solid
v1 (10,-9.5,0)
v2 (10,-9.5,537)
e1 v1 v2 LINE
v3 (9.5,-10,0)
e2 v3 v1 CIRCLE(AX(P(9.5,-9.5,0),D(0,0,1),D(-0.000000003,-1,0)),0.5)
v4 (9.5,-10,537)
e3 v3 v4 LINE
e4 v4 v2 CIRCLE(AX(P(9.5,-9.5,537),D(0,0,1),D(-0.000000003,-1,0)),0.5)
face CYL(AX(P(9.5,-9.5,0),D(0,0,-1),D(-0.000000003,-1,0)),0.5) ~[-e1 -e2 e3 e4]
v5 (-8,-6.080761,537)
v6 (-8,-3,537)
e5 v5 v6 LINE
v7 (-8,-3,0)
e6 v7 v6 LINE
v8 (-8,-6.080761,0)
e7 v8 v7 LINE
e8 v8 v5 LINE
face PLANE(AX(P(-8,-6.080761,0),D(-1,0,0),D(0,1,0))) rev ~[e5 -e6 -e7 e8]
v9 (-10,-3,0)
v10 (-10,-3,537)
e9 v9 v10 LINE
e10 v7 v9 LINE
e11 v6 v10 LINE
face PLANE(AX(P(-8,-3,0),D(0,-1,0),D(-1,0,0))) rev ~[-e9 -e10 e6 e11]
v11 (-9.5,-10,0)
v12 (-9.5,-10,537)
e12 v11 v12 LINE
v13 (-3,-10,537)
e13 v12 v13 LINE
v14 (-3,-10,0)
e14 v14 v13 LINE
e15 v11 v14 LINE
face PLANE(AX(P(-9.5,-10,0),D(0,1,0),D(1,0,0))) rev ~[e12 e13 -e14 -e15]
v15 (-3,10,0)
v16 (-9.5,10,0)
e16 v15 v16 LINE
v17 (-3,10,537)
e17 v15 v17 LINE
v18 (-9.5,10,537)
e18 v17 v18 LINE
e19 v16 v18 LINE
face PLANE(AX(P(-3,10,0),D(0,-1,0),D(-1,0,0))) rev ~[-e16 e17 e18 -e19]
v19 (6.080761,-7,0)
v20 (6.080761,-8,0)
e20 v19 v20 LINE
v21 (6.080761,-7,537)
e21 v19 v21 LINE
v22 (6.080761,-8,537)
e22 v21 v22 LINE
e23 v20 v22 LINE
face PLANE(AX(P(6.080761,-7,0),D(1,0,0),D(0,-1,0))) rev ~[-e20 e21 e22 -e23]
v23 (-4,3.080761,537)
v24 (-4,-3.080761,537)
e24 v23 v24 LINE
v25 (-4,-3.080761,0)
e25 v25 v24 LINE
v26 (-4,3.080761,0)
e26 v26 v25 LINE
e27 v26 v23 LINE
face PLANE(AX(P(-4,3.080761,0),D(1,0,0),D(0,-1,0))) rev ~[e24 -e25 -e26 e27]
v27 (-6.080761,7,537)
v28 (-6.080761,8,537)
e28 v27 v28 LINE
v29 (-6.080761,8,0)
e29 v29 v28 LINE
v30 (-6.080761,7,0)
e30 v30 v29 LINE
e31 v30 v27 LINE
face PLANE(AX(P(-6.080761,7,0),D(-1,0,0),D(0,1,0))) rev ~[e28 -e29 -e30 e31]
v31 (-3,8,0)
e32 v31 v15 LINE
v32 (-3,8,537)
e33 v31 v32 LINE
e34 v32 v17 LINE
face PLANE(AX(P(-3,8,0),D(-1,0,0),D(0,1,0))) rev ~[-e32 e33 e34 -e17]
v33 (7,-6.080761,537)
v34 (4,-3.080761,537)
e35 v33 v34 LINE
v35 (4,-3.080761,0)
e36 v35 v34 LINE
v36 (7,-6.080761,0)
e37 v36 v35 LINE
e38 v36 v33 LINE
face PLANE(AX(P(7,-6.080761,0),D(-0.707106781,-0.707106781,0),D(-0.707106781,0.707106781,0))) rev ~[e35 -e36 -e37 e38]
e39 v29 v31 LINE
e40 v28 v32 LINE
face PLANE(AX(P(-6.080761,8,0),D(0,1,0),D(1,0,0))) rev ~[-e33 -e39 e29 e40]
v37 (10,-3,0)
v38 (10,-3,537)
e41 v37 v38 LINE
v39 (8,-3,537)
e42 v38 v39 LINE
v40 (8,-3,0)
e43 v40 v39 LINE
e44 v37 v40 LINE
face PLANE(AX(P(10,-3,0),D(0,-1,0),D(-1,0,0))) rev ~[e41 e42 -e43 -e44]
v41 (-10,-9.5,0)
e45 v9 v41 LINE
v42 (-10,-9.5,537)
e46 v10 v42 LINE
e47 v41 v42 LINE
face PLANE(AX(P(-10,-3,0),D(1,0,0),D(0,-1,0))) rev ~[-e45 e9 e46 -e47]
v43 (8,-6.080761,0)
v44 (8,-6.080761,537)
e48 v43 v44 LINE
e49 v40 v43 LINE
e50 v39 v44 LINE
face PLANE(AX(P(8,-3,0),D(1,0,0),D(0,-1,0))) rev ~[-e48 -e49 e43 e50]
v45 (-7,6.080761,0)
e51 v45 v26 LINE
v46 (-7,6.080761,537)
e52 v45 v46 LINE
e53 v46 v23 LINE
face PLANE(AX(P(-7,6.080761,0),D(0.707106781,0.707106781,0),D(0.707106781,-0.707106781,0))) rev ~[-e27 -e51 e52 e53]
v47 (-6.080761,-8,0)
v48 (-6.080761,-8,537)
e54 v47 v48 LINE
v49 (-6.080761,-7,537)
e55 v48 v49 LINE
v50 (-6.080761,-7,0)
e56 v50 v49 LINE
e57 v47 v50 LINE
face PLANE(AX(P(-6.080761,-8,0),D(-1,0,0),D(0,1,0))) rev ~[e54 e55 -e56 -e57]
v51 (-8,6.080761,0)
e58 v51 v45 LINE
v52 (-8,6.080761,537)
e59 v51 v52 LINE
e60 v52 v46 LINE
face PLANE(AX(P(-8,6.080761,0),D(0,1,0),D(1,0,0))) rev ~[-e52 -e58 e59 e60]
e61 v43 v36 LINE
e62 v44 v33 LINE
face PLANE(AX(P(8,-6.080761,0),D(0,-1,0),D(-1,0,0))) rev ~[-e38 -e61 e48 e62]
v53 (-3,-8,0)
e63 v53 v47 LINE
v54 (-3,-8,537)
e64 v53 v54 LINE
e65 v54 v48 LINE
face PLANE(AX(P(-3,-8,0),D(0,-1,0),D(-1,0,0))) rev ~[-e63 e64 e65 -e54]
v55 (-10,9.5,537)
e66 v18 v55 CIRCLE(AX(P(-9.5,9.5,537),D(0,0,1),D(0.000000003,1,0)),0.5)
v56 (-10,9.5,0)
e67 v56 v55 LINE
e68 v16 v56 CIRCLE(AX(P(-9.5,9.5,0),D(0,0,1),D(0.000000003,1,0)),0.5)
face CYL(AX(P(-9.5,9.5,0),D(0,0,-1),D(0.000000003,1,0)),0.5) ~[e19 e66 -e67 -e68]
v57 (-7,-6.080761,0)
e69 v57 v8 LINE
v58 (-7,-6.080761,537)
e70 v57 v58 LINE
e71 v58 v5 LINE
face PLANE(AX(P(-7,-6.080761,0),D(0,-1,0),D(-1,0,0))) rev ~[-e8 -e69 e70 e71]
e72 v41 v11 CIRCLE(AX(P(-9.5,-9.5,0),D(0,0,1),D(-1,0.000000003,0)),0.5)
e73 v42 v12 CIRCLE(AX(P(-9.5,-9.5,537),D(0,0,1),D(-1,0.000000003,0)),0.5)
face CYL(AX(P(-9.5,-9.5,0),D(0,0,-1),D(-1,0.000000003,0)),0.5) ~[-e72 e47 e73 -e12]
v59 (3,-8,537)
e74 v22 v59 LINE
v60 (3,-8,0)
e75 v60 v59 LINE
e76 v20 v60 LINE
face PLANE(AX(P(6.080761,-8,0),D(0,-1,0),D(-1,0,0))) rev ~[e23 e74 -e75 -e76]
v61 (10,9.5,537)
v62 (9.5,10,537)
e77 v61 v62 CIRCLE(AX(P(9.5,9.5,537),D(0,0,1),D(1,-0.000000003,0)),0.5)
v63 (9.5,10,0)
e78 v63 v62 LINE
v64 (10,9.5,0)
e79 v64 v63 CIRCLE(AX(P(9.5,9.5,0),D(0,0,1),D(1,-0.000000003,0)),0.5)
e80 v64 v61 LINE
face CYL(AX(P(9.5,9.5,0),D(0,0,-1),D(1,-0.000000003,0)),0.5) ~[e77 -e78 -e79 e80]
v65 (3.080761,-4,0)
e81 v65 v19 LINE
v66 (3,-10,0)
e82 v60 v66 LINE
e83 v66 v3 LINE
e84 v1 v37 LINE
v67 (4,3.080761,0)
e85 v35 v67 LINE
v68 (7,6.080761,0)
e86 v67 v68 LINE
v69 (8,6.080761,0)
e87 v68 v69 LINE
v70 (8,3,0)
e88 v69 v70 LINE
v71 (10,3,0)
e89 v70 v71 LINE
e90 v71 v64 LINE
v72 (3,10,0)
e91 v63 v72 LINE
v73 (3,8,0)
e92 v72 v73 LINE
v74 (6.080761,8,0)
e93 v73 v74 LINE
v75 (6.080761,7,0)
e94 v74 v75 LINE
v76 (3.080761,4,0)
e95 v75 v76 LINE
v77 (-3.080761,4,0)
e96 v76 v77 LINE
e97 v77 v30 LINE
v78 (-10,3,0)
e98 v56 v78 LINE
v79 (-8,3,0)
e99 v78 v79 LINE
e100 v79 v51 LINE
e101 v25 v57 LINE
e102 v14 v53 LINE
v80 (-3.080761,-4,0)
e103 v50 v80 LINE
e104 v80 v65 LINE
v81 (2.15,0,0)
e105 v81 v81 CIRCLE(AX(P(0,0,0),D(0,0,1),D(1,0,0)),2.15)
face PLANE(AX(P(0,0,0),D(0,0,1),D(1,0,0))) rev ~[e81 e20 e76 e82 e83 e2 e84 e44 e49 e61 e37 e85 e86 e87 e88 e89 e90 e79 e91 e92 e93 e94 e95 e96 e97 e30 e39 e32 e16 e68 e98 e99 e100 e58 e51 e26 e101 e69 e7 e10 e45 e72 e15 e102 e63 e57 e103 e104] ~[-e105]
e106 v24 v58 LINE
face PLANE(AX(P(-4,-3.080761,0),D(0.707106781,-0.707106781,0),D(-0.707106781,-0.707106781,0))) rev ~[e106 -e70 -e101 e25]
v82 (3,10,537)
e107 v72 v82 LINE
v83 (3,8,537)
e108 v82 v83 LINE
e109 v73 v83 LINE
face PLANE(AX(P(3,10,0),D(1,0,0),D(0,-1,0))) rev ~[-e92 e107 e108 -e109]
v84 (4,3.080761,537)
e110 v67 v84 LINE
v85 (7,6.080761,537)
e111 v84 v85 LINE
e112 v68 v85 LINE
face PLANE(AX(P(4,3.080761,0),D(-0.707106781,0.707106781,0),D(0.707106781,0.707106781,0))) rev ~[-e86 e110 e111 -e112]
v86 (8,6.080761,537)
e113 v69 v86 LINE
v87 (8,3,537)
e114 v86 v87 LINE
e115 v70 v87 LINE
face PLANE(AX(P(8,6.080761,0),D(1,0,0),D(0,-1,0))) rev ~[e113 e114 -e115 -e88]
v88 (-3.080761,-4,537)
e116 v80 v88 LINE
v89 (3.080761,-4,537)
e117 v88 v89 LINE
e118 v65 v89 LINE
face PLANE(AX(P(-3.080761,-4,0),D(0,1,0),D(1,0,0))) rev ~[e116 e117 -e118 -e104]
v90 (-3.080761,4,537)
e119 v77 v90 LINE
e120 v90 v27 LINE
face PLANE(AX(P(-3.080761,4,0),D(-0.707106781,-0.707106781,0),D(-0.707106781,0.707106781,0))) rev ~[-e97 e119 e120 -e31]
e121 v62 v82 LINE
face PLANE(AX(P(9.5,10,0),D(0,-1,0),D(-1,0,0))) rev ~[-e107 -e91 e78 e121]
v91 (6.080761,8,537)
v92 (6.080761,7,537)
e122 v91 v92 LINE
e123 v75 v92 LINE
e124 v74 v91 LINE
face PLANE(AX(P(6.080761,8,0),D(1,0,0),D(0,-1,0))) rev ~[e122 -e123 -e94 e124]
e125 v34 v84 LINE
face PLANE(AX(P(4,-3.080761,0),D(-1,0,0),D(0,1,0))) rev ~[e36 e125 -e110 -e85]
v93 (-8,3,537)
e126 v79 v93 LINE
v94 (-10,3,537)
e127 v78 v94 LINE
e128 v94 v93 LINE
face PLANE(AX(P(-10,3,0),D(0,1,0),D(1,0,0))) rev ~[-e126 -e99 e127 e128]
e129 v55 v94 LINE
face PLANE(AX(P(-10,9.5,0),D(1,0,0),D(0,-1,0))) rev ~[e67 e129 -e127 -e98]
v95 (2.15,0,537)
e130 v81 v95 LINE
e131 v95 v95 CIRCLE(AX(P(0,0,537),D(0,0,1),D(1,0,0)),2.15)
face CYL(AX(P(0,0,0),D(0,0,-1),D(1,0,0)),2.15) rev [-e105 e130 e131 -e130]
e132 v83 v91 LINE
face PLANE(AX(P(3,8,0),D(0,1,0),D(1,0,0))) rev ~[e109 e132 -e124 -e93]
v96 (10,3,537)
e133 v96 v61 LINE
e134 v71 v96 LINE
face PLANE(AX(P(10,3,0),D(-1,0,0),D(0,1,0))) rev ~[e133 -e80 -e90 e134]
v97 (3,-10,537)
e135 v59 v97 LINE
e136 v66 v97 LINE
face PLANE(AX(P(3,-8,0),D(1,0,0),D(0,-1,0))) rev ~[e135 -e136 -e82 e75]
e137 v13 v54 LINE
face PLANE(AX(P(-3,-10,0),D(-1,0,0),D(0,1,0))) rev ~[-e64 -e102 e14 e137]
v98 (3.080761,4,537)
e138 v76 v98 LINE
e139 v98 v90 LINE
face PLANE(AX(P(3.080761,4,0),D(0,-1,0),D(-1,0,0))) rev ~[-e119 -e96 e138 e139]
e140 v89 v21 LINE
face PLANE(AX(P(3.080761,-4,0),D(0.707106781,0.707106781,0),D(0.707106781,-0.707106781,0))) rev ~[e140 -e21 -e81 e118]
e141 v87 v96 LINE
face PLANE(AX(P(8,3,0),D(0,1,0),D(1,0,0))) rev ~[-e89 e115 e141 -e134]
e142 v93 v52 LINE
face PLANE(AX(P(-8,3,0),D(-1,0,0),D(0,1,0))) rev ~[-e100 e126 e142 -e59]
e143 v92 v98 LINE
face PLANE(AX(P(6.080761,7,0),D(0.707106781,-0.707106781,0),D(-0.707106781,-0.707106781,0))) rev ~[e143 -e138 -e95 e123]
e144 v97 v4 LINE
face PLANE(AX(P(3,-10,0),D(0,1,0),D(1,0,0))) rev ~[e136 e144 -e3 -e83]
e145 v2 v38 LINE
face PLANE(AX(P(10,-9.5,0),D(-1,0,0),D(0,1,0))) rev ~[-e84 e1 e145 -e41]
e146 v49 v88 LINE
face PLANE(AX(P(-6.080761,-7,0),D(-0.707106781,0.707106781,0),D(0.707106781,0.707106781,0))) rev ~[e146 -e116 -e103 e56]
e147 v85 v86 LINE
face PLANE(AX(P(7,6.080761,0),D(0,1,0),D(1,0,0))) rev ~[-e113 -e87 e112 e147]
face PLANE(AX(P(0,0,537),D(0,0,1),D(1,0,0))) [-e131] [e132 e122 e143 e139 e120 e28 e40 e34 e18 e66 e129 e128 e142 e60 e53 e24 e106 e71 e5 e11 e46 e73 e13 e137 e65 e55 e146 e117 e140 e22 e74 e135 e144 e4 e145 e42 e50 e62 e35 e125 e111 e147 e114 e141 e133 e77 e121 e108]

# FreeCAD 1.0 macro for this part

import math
import FreeCAD as App
import Part
import Sketcher

V = App.Vector

doc = App.newDocument("Part")
body = doc.addObject("PartDesign::Body", "Body")

# Sketch on XY plane
sketch1 = doc.addObject("Sketcher::SketchObject", "Sketch")
body.addObject(sketch1)
sketch1.AttachmentSupport = (doc.XY_Plane, [""])
sketch1.MapMode = "FlatFace"
sketch1.addGeometry(Part.LineSegment(V(-3, 10, 0), V(-9.5, 10, 0)), False)
sketch1.addGeometry(Part.ArcOfCircle(Part.Circle(V(-9.5, 9.5, 0), V(0, 0, 1), 0.5), math.radians(90), math.radians(180)), False)
sketch1.addGeometry(Part.LineSegment(V(-10, 9.5, 0), V(-10, 3, 0)), False)
sketch1.addGeometry(Part.LineSegment(V(-10, 3, 0), V(-8, 3, 0)), False)
sketch1.addGeometry(Part.LineSegment(V(-8, 3, 0), V(-8, 6.080761, 0)), False)
sketch1.addGeometry(Part.LineSegment(V(-8, 6.080761, 0), V(-7, 6.080761, 0)), False)
sketch1.addGeometry(Part.LineSegment(V(-7, 6.080761, 0), V(-4, 3.080761, 0)), False)
sketch1.addGeometry(Part.LineSegment(V(-4, 3.080761, 0), V(-4, -3.080761, 0)), False)
sketch1.addGeometry(Part.LineSegment(V(-4, -3.080761, 0), V(-7, -6.080761, 0)), False)
sketch1.addGeometry(Part.LineSegment(V(-7, -6.080761, 0), V(-8, -6.080761, 0)), False)
sketch1.addGeometry(Part.LineSegment(V(-8, -6.080761, 0), V(-8, -3, 0)), False)
sketch1.addGeometry(Part.LineSegment(V(-8, -3, 0), V(-10, -3, 0)), False)
sketch1.addGeometry(Part.LineSegment(V(-10, -3, 0), V(-10, -9.5, 0)), False)
sketch1.addGeometry(Part.ArcOfCircle(Part.Circle(V(-9.5, -9.5, 0), V(0, 0, 1), 0.5), math.radians(180), math.radians(270)), False)
sketch1.addGeometry(Part.LineSegment(V(-9.5, -10, 0), V(-3, -10, 0)), False)
sketch1.addGeometry(Part.LineSegment(V(-3, -10, 0), V(-3, -8, 0)), False)
sketch1.addGeometry(Part.LineSegment(V(-3, -8, 0), V(-6.080761, -8, 0)), False)
sketch1.addGeometry(Part.LineSegment(V(-6.080761, -8, 0), V(-6.080761, -7, 0)), False)
sketch1.addGeometry(Part.LineSegment(V(-6.080761, -7, 0), V(-3.080761, -4, 0)), False)
sketch1.addGeometry(Part.LineSegment(V(-3.080761, -4, 0), V(3.080761, -4, 0)), False)
sketch1.addGeometry(Part.LineSegment(V(3.080761, -4, 0), V(6.080761, -7, 0)), False)
sketch1.addGeometry(Part.LineSegment(V(6.080761, -7, 0), V(6.080761, -8, 0)), False)
sketch1.addGeometry(Part.LineSegment(V(6.080761, -8, 0), V(3, -8, 0)), False)
sketch1.addGeometry(Part.LineSegment(V(3, -8, 0), V(3, -10, 0)), False)
sketch1.addGeometry(Part.LineSegment(V(3, -10, 0), V(9.5, -10, 0)), False)
sketch1.addGeometry(Part.ArcOfCircle(Part.Circle(V(9.5, -9.5, 0), V(0, 0, 1), 0.5), math.radians(-90), math.radians(0)), False)
sketch1.addGeometry(Part.LineSegment(V(10, -9.5, 0), V(10, -3, 0)), False)
sketch1.addGeometry(Part.LineSegment(V(10, -3, 0), V(8, -3, 0)), False)
sketch1.addGeometry(Part.LineSegment(V(8, -3, 0), V(8, -6.080761, 0)), False)
sketch1.addGeometry(Part.LineSegment(V(8, -6.080761, 0), V(7, -6.080761, 0)), False)
sketch1.addGeometry(Part.LineSegment(V(7, -6.080761, 0), V(4, -3.080761, 0)), False)
sketch1.addGeometry(Part.LineSegment(V(4, -3.080761, 0), V(4, 3.080761, 0)), False)
sketch1.addGeometry(Part.LineSegment(V(4, 3.080761, 0), V(7, 6.080761, 0)), False)
sketch1.addGeometry(Part.LineSegment(V(7, 6.080761, 0), V(8, 6.080761, 0)), False)
sketch1.addGeometry(Part.LineSegment(V(8, 6.080761, 0), V(8, 3, 0)), False)
sketch1.addGeometry(Part.LineSegment(V(8, 3, 0), V(10, 3, 0)), False)
sketch1.addGeometry(Part.LineSegment(V(10, 3, 0), V(10, 9.5, 0)), False)
sketch1.addGeometry(Part.ArcOfCircle(Part.Circle(V(9.5, 9.5, 0), V(0, 0, 1), 0.5), math.radians(0), math.radians(90)), False)
sketch1.addGeometry(Part.LineSegment(V(9.5, 10, 0), V(3, 10, 0)), False)
sketch1.addGeometry(Part.LineSegment(V(3, 10, 0), V(3, 8, 0)), False)
sketch1.addGeometry(Part.LineSegment(V(3, 8, 0), V(6.080761, 8, 0)), False)
sketch1.addGeometry(Part.LineSegment(V(6.080761, 8, 0), V(6.080761, 7, 0)), False)
sketch1.addGeometry(Part.LineSegment(V(6.080761, 7, 0), V(3.080761, 4, 0)), False)
sketch1.addGeometry(Part.LineSegment(V(3.080761, 4, 0), V(-3.080761, 4, 0)), False)
sketch1.addGeometry(Part.LineSegment(V(-3.080761, 4, 0), V(-6.080761, 7, 0)), False)
sketch1.addGeometry(Part.LineSegment(V(-6.080761, 7, 0), V(-6.080761, 8, 0)), False)
sketch1.addGeometry(Part.LineSegment(V(-6.080761, 8, 0), V(-3, 8, 0)), False)
sketch1.addGeometry(Part.LineSegment(V(-3, 8, 0), V(-3, 10, 0)), False)
sketch1.addGeometry(Part.Circle(V(0, 0, 0), V(0, 0, 1), 2.15), False)
sketch1.addConstraint(Sketcher.Constraint("Tangent", 0, 2, 1, 1))
sketch1.addConstraint(Sketcher.Constraint("Tangent", 1, 2, 2, 1))
sketch1.addConstraint(Sketcher.Constraint("Coincident", 2, 2, 3, 1))
sketch1.addConstraint(Sketcher.Constraint("Coincident", 3, 2, 4, 1))
sketch1.addConstraint(Sketcher.Constraint("Coincident", 4, 2, 5, 1))
sketch1.addConstraint(Sketcher.Constraint("Coincident", 5, 2, 6, 1))
sketch1.addConstraint(Sketcher.Constraint("Coincident", 6, 2, 7, 1))
sketch1.addConstraint(Sketcher.Constraint("Coincident", 7, 2, 8, 1))
sketch1.addConstraint(Sketcher.Constraint("Coincident", 8, 2, 9, 1))
sketch1.addConstraint(Sketcher.Constraint("Coincident", 9, 2, 10, 1))
sketch1.addConstraint(Sketcher.Constraint("Coincident", 10, 2, 11, 1))
sketch1.addConstraint(Sketcher.Constraint("Coincident", 11, 2, 12, 1))
sketch1.addConstraint(Sketcher.Constraint("Tangent", 12, 2, 13, 1))
sketch1.addConstraint(Sketcher.Constraint("Tangent", 13, 2, 14, 1))
sketch1.addConstraint(Sketcher.Constraint("Coincident", 14, 2, 15, 1))
sketch1.addConstraint(Sketcher.Constraint("Coincident", 15, 2, 16, 1))
sketch1.addConstraint(Sketcher.Constraint("Coincident", 16, 2, 17, 1))
sketch1.addConstraint(Sketcher.Constraint("Coincident", 17, 2, 18, 1))
sketch1.addConstraint(Sketcher.Constraint("Coincident", 18, 2, 19, 1))
sketch1.addConstraint(Sketcher.Constraint("Coincident", 19, 2, 20, 1))
sketch1.addConstraint(Sketcher.Constraint("Coincident", 20, 2, 21, 1))
sketch1.addConstraint(Sketcher.Constraint("Coincident", 21, 2, 22, 1))
sketch1.addConstraint(Sketcher.Constraint("Coincident", 22, 2, 23, 1))
sketch1.addConstraint(Sketcher.Constraint("Coincident", 23, 2, 24, 1))
sketch1.addConstraint(Sketcher.Constraint("Tangent", 24, 2, 25, 1))
sketch1.addConstraint(Sketcher.Constraint("Tangent", 25, 2, 26, 1))
sketch1.addConstraint(Sketcher.Constraint("Coincident", 26, 2, 27, 1))
sketch1.addConstraint(Sketcher.Constraint("Coincident", 27, 2, 28, 1))
sketch1.addConstraint(Sketcher.Constraint("Coincident", 28, 2, 29, 1))
sketch1.addConstraint(Sketcher.Constraint("Coincident", 29, 2, 30, 1))
sketch1.addConstraint(Sketcher.Constraint("Coincident", 30, 2, 31, 1))
sketch1.addConstraint(Sketcher.Constraint("Coincident", 31, 2, 32, 1))
sketch1.addConstraint(Sketcher.Constraint("Coincident", 32, 2, 33, 1))
sketch1.addConstraint(Sketcher.Constraint("Coincident", 33, 2, 34, 1))
sketch1.addConstraint(Sketcher.Constraint("Coincident", 34, 2, 35, 1))
sketch1.addConstraint(Sketcher.Constraint("Coincident", 35, 2, 36, 1))
sketch1.addConstraint(Sketcher.Constraint("Tangent", 36, 2, 37, 1))
sketch1.addConstraint(Sketcher.Constraint("Tangent", 37, 2, 38, 1))
sketch1.addConstraint(Sketcher.Constraint("Coincident", 38, 2, 39, 1))
sketch1.addConstraint(Sketcher.Constraint("Coincident", 39, 2, 40, 1))
sketch1.addConstraint(Sketcher.Constraint("Coincident", 40, 2, 41, 1))
sketch1.addConstraint(Sketcher.Constraint("Coincident", 41, 2, 42, 1))
sketch1.addConstraint(Sketcher.Constraint("Coincident", 42, 2, 43, 1))
sketch1.addConstraint(Sketcher.Constraint("Coincident", 43, 2, 44, 1))
sketch1.addConstraint(Sketcher.Constraint("Coincident", 44, 2, 45, 1))
sketch1.addConstraint(Sketcher.Constraint("Coincident", 45, 2, 46, 1))
sketch1.addConstraint(Sketcher.Constraint("Coincident", 46, 2, 47, 1))
sketch1.addConstraint(Sketcher.Constraint("Coincident", 47, 2, 0, 1))
sketch1.addConstraint(Sketcher.Constraint("Horizontal", 0))
sketch1.addConstraint(Sketcher.Constraint("Vertical", 2))
sketch1.addConstraint(Sketcher.Constraint("Horizontal", 3))
sketch1.addConstraint(Sketcher.Constraint("Vertical", 4))
sketch1.addConstraint(Sketcher.Constraint("Horizontal", 5))
sketch1.addConstraint(Sketcher.Constraint("Vertical", 7))
sketch1.addConstraint(Sketcher.Constraint("Horizontal", 9))
sketch1.addConstraint(Sketcher.Constraint("Vertical", 10))
sketch1.addConstraint(Sketcher.Constraint("Horizontal", 11))
sketch1.addConstraint(Sketcher.Constraint("Vertical", 12))
sketch1.addConstraint(Sketcher.Constraint("Horizontal", 14))
sketch1.addConstraint(Sketcher.Constraint("Vertical", 15))
sketch1.addConstraint(Sketcher.Constraint("Horizontal", 16))
sketch1.addConstraint(Sketcher.Constraint("Vertical", 17))
sketch1.addConstraint(Sketcher.Constraint("Horizontal", 19))
sketch1.addConstraint(Sketcher.Constraint("Vertical", 21))
sketch1.addConstraint(Sketcher.Constraint("Horizontal", 22))
sketch1.addConstraint(Sketcher.Constraint("Vertical", 23))
sketch1.addConstraint(Sketcher.Constraint("Horizontal", 24))
sketch1.addConstraint(Sketcher.Constraint("Vertical", 26))
sketch1.addConstraint(Sketcher.Constraint("Horizontal", 27))
sketch1.addConstraint(Sketcher.Constraint("Vertical", 28))
sketch1.addConstraint(Sketcher.Constraint("Horizontal", 29))
sketch1.addConstraint(Sketcher.Constraint("Vertical", 31))
sketch1.addConstraint(Sketcher.Constraint("Horizontal", 33))
sketch1.addConstraint(Sketcher.Constraint("Vertical", 34))
sketch1.addConstraint(Sketcher.Constraint("Horizontal", 35))
sketch1.addConstraint(Sketcher.Constraint("Vertical", 36))
sketch1.addConstraint(Sketcher.Constraint("Horizontal", 38))
sketch1.addConstraint(Sketcher.Constraint("Vertical", 39))
sketch1.addConstraint(Sketcher.Constraint("Horizontal", 40))
sketch1.addConstraint(Sketcher.Constraint("Vertical", 41))
sketch1.addConstraint(Sketcher.Constraint("Horizontal", 43))
sketch1.addConstraint(Sketcher.Constraint("Vertical", 45))
sketch1.addConstraint(Sketcher.Constraint("Horizontal", 46))
sketch1.addConstraint(Sketcher.Constraint("Vertical", 47))
sketch1.addConstraint(Sketcher.Constraint("Coincident", 48, 3, -1, 1))
sketch1.addConstraint(Sketcher.Constraint("Equal", 1, 13))
sketch1.addConstraint(Sketcher.Constraint("Equal", 13, 25))
sketch1.addConstraint(Sketcher.Constraint("Equal", 25, 37))
sketch1.addConstraint(Sketcher.Constraint("Symmetric", 1, 3, 25, 3, -1, 1))
sketch1.addConstraint(Sketcher.Constraint("Symmetric", 13, 3, 37, 3, -1, 1))
sketch1.addConstraint(Sketcher.Constraint("Symmetric", 3, 2, 27, 2, -1, 1))
sketch1.addConstraint(Sketcher.Constraint("Symmetric", 5, 2, 29, 2, -1, 1))
sketch1.addConstraint(Sketcher.Constraint("Symmetric", 6, 2, 30, 2, -1, 1))
sketch1.addConstraint(Sketcher.Constraint("Symmetric", 8, 2, 32, 2, -1, 1))
sketch1.addConstraint(Sketcher.Constraint("Symmetric", 10, 2, 34, 2, -1, 1))
sketch1.addConstraint(Sketcher.Constraint("Symmetric", 15, 2, 39, 2, -1, 1))
sketch1.addConstraint(Sketcher.Constraint("Symmetric", 17, 2, 41, 2, -1, 1))
sketch1.addConstraint(Sketcher.Constraint("Symmetric", 18, 2, 42, 2, -1, 1))
sketch1.addConstraint(Sketcher.Constraint("Symmetric", 20, 2, 44, 2, -1, 1))
sketch1.addConstraint(Sketcher.Constraint("Symmetric", 22, 2, 46, 2, -1, 1))
sketch1.addConstraint(Sketcher.Constraint("Symmetric", 13, 3, 25, 3, -2))
sketch1.addConstraint(Sketcher.Constraint("Symmetric", 17, 2, 20, 2, -2))
sketch1.addConstraint(Sketcher.Constraint("Symmetric", 15, 2, 22, 2, -2))
sketch1.addConstraint(Sketcher.Constraint("Symmetric", 10, 2, 27, 2, -2))
sketch1.addConstraint(Sketcher.Constraint("Symmetric", 8, 2, 29, 2, -2))
sketch1.addConstraint(Sketcher.Constraint("Perpendicular", 6, 8))
sketch1.addConstraint(Sketcher.Constraint("Parallel", 8, 18))
sketch1.addConstraint(Sketcher.Constraint("Perpendicular", 18, 20))
sketch1.addConstraint(Sketcher.Constraint("Perpendicular", 30, 32))
sketch1.addConstraint(Sketcher.Constraint("Perpendicular", 42, 44))
sketch1.addConstraint(Sketcher.Constraint("Horizontal", 7, 2, 30, 2))
sketch1.addConstraint(Sketcher.Constraint("Equal", 38, 2))
sketch1.addConstraint(Sketcher.Constraint("Equal", 46, 4))
sketch1.addConstraint(Sketcher.Constraint("Equal", 43, 7))
sketch1.addConstraint(Sketcher.Constraint("Equal", 35, 15))
sketch1.addConstraint(Sketcher.Constraint("Equal", 33, 17))
sketch1.addConstraint(Sketcher.Constraint("Equal", 8, 18))
sketch1.addConstraint(Sketcher.Constraint("Diameter", 48, 4.3))
sketch1.addConstraint(Sketcher.Constraint("Radius", 1, 0.5))
sketch1.addConstraint(Sketcher.Constraint("DistanceX", 3, 1, 3, 2, 2.0))
sketch1.addConstraint(Sketcher.Constraint("DistanceX", 5, 1, 5, 2, 1.0))
sketch1.addConstraint(Sketcher.Constraint("DistanceX", 0, 2, 0, 1, 6.5))
sketch1.addConstraint(Sketcher.Constraint("DistanceY", -1, 1, 0, 2, 10.0))
sketch1.addConstraint(Sketcher.Constraint("DistanceX", 6, 2, -1, 1, 4.0))
sketch1.addConstraint(Sketcher.Constraint("DistanceX", 16, 2, 16, 1, 3.080761))
pad1 = doc.addObject("PartDesign::Pad", "Pad")
body.addObject(pad1)
pad1.Profile = sketch1
pad1.Length = 537

doc.recompute()
